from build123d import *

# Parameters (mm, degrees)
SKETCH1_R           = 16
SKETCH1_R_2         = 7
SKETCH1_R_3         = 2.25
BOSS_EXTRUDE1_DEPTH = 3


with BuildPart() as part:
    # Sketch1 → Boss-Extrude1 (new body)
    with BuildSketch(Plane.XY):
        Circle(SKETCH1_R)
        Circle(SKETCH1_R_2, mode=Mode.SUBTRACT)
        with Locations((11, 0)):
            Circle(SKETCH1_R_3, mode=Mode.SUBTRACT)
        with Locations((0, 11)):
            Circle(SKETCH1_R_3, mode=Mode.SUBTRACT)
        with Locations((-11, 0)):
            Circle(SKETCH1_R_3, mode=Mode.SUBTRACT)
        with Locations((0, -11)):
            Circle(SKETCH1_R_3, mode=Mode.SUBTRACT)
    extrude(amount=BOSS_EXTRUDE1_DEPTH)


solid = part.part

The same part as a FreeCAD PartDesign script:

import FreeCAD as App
import Part
import Sketcher

V = App.Vector
Q = App.Units.Quantity

doc = App.newDocument("Part")
body = doc.addObject("PartDesign::Body", "Body")

# Sketch on XY plane
sketch1 = body.newObject("Sketcher::SketchObject", "Sketch")
sketch1.AttachmentSupport = (doc.getObject("XY_Plane"), [""])
sketch1.MapMode = "FlatFace"
sketch1.addGeometry(Part.Circle(V(0, 0, 0), V(0, 0, 1), 16), False)
sketch1.addGeometry(Part.Circle(V(0, -11, 0), V(0, 0, 1), 2.2), False)
sketch1.addGeometry(Part.Circle(V(-11, 0, 0), V(0, 0, 1), 2.2), False)
sketch1.addGeometry(Part.Circle(V(0, 0, 0), V(0, 0, 1), 7), False)
sketch1.addGeometry(Part.Circle(V(11, 0, 0), V(0, 0, 1), 2.2), False)
sketch1.addGeometry(Part.Circle(V(0, 11, 0), V(0, 0, 1), 2.2), False)
sketch1.addConstraint(Sketcher.Constraint("Coincident", 0, 3, -1, 1))
sketch1.addConstraint(Sketcher.Constraint("Coincident", 3, 3, -1, 1))
sketch1.addConstraint(Sketcher.Constraint("Equal", 1, 2))
sketch1.addConstraint(Sketcher.Constraint("Equal", 2, 4))
sketch1.addConstraint(Sketcher.Constraint("Equal", 4, 5))
sketch1.addConstraint(Sketcher.Constraint("Symmetric", 2, 3, 4, 3, -1, 1))
sketch1.addConstraint(Sketcher.Constraint("Symmetric", 1, 3, 5, 3, -1, 1))
sketch1.addConstraint(Sketcher.Constraint("PointOnObject", 1, 3, -2))
sketch1.addConstraint(Sketcher.Constraint("PointOnObject", 2, 3, -1))
sketch1.addConstraint(Sketcher.Constraint("Diameter", 0, Q("32 mm")))
sketch1.addConstraint(Sketcher.Constraint("Diameter", 3, Q("14 mm")))
sketch1.addConstraint(Sketcher.Constraint("Diameter", 1, Q("4.5 mm")))
sketch1.addConstraint(Sketcher.Constraint("DistanceY", 1, 3, -1, 1, Q("11 mm")))
sketch1.addConstraint(Sketcher.Constraint("DistanceX", 2, 3, -1, 1, Q("11 mm")))
pad1 = body.newObject("PartDesign::Pad", "Pad")
pad1.Profile = sketch1
pad1.Length = 3

doc.recompute()
